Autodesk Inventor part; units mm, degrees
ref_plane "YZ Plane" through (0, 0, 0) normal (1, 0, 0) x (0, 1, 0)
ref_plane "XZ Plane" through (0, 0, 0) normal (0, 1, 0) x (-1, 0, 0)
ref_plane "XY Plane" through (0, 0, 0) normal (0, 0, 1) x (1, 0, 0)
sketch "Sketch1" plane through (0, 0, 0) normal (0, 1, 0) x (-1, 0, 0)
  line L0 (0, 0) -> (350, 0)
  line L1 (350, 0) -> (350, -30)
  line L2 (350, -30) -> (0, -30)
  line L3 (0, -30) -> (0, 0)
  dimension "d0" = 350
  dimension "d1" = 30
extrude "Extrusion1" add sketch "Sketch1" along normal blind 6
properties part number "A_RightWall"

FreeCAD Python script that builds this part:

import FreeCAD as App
import Part
import Sketcher
Q = App.Units.Quantity

doc = App.newDocument("Part")
params = doc.addObject("Spreadsheet::Sheet", "Params")
for row, (alias, value) in enumerate([
    ("sketch1_width", "350 mm"),
    ("sketch1_height", "30 mm"),
    ("pad1_length", "6 mm"),
], start=1):
    params.set(f"A{row}", alias)
    params.set(f"B{row}", "=" + value)
    params.setAlias(f"B{row}", alias)

body = doc.addObject("PartDesign::Body", "Body")

# Sketch on XZ plane
sketch1 = body.newObject("Sketcher::SketchObject", "Sketch")
sketch1.AttachmentSupport = (doc.getObject("XZ_Plane"), [""])
sketch1.MapMode = "FlatFace"
sketch1.addGeometry([
    Part.LineSegment(App.Vector(-350, 0, 0), App.Vector(0, 0, 0)),
    Part.LineSegment(App.Vector(0, 0, 0), App.Vector(0, -30, 0)),
    Part.LineSegment(App.Vector(0, -30, 0), App.Vector(-350, -30, 0)),
    Part.LineSegment(App.Vector(-350, -30, 0), App.Vector(-350, 0, 0)),
], False)
sketch1.addConstraint([
    Sketcher.Constraint("Coincident", 0, 2, 1, 1),
    Sketcher.Constraint("Coincident", 1, 2, 2, 1),
    Sketcher.Constraint("Coincident", 2, 2, 3, 1),
    Sketcher.Constraint("Coincident", 3, 2, 0, 1),
    Sketcher.Constraint("Horizontal", 0),
    Sketcher.Constraint("Vertical", 1),
    Sketcher.Constraint("Horizontal", 2),
    Sketcher.Constraint("Vertical", 3),
    Sketcher.Constraint("Coincident", 0, 2, -1, 1),
    Sketcher.Constraint("DistanceX", 0, 1, 0, 2, Q("350 mm")),
    Sketcher.Constraint("DistanceY", 1, 2, 1, 1, Q("30 mm")),
])
sketch1.setExpression("Constraints[9]", "Params.sketch1_width")
sketch1.setExpression("Constraints[10]", "Params.sketch1_height")
pad1 = body.newObject("PartDesign::Pad", "Pad")
pad1.Profile = sketch1
pad1.setExpression("Length", "Params.pad1_length")
pad1.Reversed = True

doc.recompute()
